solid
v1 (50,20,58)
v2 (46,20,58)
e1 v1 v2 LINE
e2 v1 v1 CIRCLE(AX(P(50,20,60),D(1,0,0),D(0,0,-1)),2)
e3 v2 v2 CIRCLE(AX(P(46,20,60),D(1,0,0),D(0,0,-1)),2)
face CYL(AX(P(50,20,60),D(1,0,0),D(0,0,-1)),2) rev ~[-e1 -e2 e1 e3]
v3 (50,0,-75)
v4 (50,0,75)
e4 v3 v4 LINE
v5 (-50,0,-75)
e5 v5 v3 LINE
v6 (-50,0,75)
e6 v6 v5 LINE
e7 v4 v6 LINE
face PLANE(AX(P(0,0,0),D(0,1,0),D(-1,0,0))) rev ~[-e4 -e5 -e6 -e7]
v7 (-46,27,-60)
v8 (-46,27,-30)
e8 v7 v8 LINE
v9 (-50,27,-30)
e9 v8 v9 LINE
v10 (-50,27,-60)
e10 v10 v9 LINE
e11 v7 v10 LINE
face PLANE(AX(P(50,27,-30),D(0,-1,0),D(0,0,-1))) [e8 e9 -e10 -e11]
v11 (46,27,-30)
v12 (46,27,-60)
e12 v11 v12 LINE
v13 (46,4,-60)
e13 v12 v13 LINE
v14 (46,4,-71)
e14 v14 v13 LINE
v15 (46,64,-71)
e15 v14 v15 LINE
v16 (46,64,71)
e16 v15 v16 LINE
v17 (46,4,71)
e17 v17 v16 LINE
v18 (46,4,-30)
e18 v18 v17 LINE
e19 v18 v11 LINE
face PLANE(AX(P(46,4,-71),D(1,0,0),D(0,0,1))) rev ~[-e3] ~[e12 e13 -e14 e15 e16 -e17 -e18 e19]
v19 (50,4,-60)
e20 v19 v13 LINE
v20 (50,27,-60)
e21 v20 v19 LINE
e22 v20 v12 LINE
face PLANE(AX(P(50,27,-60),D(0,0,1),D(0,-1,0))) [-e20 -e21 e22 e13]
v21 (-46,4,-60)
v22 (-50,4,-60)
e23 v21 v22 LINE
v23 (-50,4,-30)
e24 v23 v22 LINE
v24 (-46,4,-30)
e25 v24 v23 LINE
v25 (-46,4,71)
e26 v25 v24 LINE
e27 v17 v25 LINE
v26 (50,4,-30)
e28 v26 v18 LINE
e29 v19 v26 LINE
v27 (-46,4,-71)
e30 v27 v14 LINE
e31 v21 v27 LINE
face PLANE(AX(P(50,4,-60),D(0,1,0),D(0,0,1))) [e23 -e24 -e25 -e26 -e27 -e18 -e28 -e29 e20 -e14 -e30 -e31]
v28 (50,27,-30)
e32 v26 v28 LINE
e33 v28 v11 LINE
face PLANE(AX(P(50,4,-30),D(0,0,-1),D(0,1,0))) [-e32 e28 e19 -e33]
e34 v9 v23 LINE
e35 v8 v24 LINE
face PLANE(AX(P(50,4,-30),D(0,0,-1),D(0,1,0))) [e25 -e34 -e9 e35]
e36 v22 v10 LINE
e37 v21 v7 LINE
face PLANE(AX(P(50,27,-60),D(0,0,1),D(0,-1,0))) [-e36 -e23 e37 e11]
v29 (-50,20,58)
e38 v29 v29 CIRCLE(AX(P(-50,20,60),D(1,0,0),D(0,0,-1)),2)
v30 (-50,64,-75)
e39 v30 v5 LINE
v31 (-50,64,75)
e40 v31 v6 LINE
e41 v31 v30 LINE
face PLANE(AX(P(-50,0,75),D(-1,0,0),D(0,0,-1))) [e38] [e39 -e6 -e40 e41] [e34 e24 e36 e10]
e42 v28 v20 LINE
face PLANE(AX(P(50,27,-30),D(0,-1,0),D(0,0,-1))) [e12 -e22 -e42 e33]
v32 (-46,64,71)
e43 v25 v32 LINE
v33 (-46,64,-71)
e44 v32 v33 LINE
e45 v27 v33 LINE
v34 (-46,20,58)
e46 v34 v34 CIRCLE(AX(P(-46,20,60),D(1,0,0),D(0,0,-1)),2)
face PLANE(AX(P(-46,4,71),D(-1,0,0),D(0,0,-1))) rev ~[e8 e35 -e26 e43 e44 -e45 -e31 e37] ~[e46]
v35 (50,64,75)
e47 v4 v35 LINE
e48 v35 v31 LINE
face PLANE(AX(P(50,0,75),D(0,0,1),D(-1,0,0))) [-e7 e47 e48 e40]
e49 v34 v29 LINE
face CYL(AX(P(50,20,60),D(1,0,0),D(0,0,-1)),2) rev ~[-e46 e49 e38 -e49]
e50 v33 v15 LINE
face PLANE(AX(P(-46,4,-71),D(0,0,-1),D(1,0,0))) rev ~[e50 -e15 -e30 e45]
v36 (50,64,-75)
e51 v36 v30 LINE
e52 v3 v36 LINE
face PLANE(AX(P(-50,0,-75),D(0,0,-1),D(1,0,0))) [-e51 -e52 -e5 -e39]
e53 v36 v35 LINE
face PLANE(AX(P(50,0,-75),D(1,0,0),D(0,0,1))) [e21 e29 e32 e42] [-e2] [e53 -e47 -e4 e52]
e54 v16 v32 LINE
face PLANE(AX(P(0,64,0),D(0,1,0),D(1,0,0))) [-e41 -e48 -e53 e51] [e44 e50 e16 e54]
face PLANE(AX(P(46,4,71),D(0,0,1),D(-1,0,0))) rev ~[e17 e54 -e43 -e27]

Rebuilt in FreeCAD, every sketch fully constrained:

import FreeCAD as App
import Part
import Sketcher

V = App.Vector
Q = App.Units.Quantity


def add_polygon(sketch, points):
    """Adds a closed chain of lines whose ends are joined by coincident constraints."""
    first, n = sketch.GeometryCount, len(points)
    for a, b in zip(points, points[1:] + points[:1]):
        sketch.addGeometry(Part.LineSegment(App.Vector(*a, 0), App.Vector(*b, 0)), False)
    for i in range(n):
        sketch.addConstraint(Sketcher.Constraint("Coincident", first + i, 2, first + (i + 1) % n, 1))

doc = App.newDocument("Part")
body = doc.addObject("PartDesign::Body", "Body")

# Sketch on XZ plane
sketch1 = body.newObject("Sketcher::SketchObject", "Sketch")
sketch1.AttachmentSupport = (doc.getObject("XZ_Plane"), [""])
sketch1.MapMode = "FlatFace"
add_polygon(sketch1, [(-50, 75), (50, 75), (50, -75), (-50, -75)])  # lines 0-3
sketch1.addConstraint(Sketcher.Constraint("Horizontal", 0))
sketch1.addConstraint(Sketcher.Constraint("Vertical", 1))
sketch1.addConstraint(Sketcher.Constraint("Horizontal", 2))
sketch1.addConstraint(Sketcher.Constraint("Vertical", 3))
sketch1.addConstraint(Sketcher.Constraint("Symmetric", 0, 2, 2, 2, -1, 1))
sketch1.addConstraint(Sketcher.Constraint("DistanceX", 0, 1, 0, 2, Q("100 mm")))
sketch1.addConstraint(Sketcher.Constraint("DistanceY", 1, 2, 1, 1, Q("150 mm")))
pad1 = body.newObject("PartDesign::Pad", "Pad")
pad1.Profile = sketch1
pad1.Length = 4
pad1.Reversed = True

# Sketch on XZ plane
sketch2 = body.newObject("Sketcher::SketchObject", "Sketch001")
sketch2.AttachmentSupport = (doc.getObject("XZ_Plane"), [""])
sketch2.MapMode = "FlatFace"
sketch2.AttachmentOffset = App.Placement(V(0, 0, -4), App.Rotation())
add_polygon(sketch2, [(50, 75), (50, -75), (-50, -75), (-50, 75)])  # lines 0-3
add_polygon(sketch2, [(46, -71), (46, 71), (-46, 71), (-46, -71)])  # lines 4-7
sketch2.addConstraint(Sketcher.Constraint("Vertical", 0))
sketch2.addConstraint(Sketcher.Constraint("Horizontal", 1))
sketch2.addConstraint(Sketcher.Constraint("Vertical", 2))
sketch2.addConstraint(Sketcher.Constraint("Horizontal", 3))
sketch2.addConstraint(Sketcher.Constraint("Vertical", 4))
sketch2.addConstraint(Sketcher.Constraint("Horizontal", 5))
sketch2.addConstraint(Sketcher.Constraint("Vertical", 6))
sketch2.addConstraint(Sketcher.Constraint("Horizontal", 7))
sketch2.addConstraint(Sketcher.Constraint("Symmetric", 0, 2, 2, 2, -1, 1))
sketch2.addConstraint(Sketcher.Constraint("Symmetric", 4, 2, 6, 2, -1, 1))
sketch2.addConstraint(Sketcher.Constraint("DistanceX", 4, 2, 3, 2, Q("4 mm")))
sketch2.addConstraint(Sketcher.Constraint("DistanceY", 4, 2, 3, 2, Q("4 mm")))
sketch2.addConstraint(Sketcher.Constraint("DistanceX", 1, 2, 1, 1, Q("100 mm")))
sketch2.addConstraint(Sketcher.Constraint("DistanceY", 0, 2, 0, 1, Q("150 mm")))
pad2 = body.newObject("PartDesign::Pad", "Pad001")
pad2.Profile = sketch2
pad2.Length = 60
pad2.Reversed = True

# Sketch on YZ plane
sketch3 = body.newObject("Sketcher::SketchObject", "Sketch002")
sketch3.AttachmentSupport = (doc.getObject("YZ_Plane"), [""])
sketch3.MapMode = "FlatFace"
sketch3.AttachmentOffset = App.Placement(V(0, 0, 50), App.Rotation())
sketch3.addGeometry(Part.Circle(V(20, 60, 0), V(0, 0, 1), 2), False)
sketch3.addConstraint(Sketcher.Constraint("Diameter", 0, Q("4 mm")))
sketch3.addConstraint(Sketcher.Constraint("DistanceX", -1, 1, 0, 3, Q("20 mm")))
sketch3.addConstraint(Sketcher.Constraint("DistanceY", -1, 1, 0, 3, Q("60 mm")))
pocket1 = body.newObject("PartDesign::Pocket", "Pocket")
pocket1.Profile = sketch3
pocket1.Length = 135.5

# Sketch on YZ plane
sketch4 = body.newObject("Sketcher::SketchObject", "Sketch003")
sketch4.AttachmentSupport = (doc.getObject("YZ_Plane"), [""])
sketch4.MapMode = "FlatFace"
sketch4.AttachmentOffset = App.Placement(V(0, 0, 50), App.Rotation())
add_polygon(sketch4, [(4, -30), (4, -60), (27, -60), (27, -30)])  # lines 0-3
sketch4.addConstraint(Sketcher.Constraint("Vertical", 0))
sketch4.addConstraint(Sketcher.Constraint("Horizontal", 1))
sketch4.addConstraint(Sketcher.Constraint("Vertical", 2))
sketch4.addConstraint(Sketcher.Constraint("Horizontal", 3))
sketch4.addConstraint(Sketcher.Constraint("DistanceX", 1, 1, 1, 2, Q("23 mm")))
sketch4.addConstraint(Sketcher.Constraint("DistanceY", 0, 2, 0, 1, Q("30 mm")))
sketch4.addConstraint(Sketcher.Constraint("DistanceY", 2, 2, -1, 1, Q("30 mm")))
sketch4.addConstraint(Sketcher.Constraint("DistanceX", -1, 1, 0, 2, Q("4 mm")))
pocket2 = body.newObject("PartDesign::Pocket", "Pocket001")
pocket2.Profile = sketch4
pocket2.Length = 135.5

doc.recompute()
